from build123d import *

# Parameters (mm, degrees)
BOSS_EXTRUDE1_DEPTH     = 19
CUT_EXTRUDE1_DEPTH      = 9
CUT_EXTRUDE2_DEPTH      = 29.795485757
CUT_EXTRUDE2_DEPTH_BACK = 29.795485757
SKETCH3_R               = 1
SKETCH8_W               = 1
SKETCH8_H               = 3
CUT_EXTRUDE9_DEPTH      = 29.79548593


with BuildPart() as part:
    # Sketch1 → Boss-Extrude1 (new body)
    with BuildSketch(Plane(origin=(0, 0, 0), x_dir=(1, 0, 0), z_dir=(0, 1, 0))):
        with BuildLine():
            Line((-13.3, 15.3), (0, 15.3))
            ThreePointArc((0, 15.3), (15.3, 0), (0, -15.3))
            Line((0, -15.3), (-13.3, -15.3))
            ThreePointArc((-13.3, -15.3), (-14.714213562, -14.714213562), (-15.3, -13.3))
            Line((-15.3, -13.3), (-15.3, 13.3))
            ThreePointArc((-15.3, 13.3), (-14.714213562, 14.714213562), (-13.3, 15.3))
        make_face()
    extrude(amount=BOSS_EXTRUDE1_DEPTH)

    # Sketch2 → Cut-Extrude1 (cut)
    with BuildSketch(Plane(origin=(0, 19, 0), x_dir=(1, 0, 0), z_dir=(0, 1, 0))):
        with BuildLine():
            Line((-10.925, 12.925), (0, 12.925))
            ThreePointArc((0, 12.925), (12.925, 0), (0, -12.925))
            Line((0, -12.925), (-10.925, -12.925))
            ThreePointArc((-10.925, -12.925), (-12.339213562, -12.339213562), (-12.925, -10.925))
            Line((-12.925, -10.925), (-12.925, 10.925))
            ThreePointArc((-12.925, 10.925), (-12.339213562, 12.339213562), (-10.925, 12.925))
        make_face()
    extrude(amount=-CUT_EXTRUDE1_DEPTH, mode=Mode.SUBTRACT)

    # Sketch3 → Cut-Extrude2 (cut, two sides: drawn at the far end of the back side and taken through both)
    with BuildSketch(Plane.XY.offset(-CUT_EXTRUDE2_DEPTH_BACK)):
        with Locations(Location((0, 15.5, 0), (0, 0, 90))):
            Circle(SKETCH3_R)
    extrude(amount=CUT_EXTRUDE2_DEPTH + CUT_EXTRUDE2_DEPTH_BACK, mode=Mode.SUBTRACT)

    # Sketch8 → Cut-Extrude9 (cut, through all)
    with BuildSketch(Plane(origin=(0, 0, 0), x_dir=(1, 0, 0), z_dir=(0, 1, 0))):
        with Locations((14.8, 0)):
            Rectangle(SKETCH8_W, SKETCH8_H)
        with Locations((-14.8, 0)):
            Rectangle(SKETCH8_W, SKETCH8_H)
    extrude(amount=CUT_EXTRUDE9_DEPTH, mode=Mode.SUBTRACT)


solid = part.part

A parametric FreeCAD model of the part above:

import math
import FreeCAD as App
import Part
import Sketcher
from FreeCAD import Vector

doc = App.newDocument("Part")
body = doc.addObject("PartDesign::Body", "Body")

# Sketch on XZ plane
sketch1 = body.newObject("Sketcher::SketchObject", "Sketch")
sketch1.AttachmentSupport = (doc.getObject("XZ_Plane"), [""])
sketch1.MapMode = "FlatFace"
sketch1.addGeometry([
    Part.LineSegment(Vector(0, -15.3, 0), Vector(-13.3, -15.3, 0)),  # 0
    Part.ArcOfCircle(Part.Circle(Vector(-13.3, -13.3, 0), Vector(0, 0, 1), 2), math.radians(-180), math.radians(-90)),  # 1
    Part.LineSegment(Vector(-15.3, -13.3, 0), Vector(-15.3, 13.3, 0)),  # 2
    Part.ArcOfCircle(Part.Circle(Vector(-13.3, 13.3, 0), Vector(0, 0, 1), 2), math.radians(90), math.radians(180)),  # 3
    Part.LineSegment(Vector(-13.3, 15.3, 0), Vector(0, 15.3, 0)),  # 4
    Part.ArcOfCircle(Part.Circle(Vector(0, 0, 0), Vector(0, 0, 1), 15.3), math.radians(-90), math.radians(90)),  # 5
], False)
sketch1.addConstraint([
    Sketcher.Constraint("Tangent", 0, 2, 1, 2),
    Sketcher.Constraint("Tangent", 1, 1, 2, 1),
    Sketcher.Constraint("Tangent", 2, 2, 3, 2),
    Sketcher.Constraint("Tangent", 3, 1, 4, 1),
    Sketcher.Constraint("Tangent", 4, 2, 5, 2),
    Sketcher.Constraint("Tangent", 5, 1, 0, 1),
    Sketcher.Constraint("Horizontal", 0),
    Sketcher.Constraint("Vertical", 2),
    Sketcher.Constraint("Horizontal", 4),
    Sketcher.Constraint("Coincident", 5, 3, -1, 1),
    Sketcher.Constraint("Equal", 1, 3),
    Sketcher.Constraint("Radius", 1, 2.0),
    Sketcher.Constraint("Radius", 5, 15.3),
    Sketcher.Constraint("DistanceX", 0, 2, 0, 1, 13.3),
])
pad1 = body.newObject("PartDesign::Pad", "Pad")
pad1.Profile = sketch1
pad1.Length = 19
pad1.Reversed = True

# Sketch on XZ plane
sketch2 = body.newObject("Sketcher::SketchObject", "Sketch001")
sketch2.AttachmentSupport = (doc.getObject("XZ_Plane"), [""])
sketch2.MapMode = "FlatFace"
sketch2.AttachmentOffset = App.Placement(Vector(0, 0, -19), App.Rotation())
sketch2.addGeometry([
    Part.LineSegment(Vector(0, -12.9, 0), Vector(-10.9, -12.9, 0)),  # 0
    Part.ArcOfCircle(Part.Circle(Vector(-10.9, -10.9, 0), Vector(0, 0, 1), 2), math.radians(-180), math.radians(-90)),  # 1
    Part.LineSegment(Vector(-12.9, -10.9, 0), Vector(-12.9, 10.9, 0)),  # 2
    Part.ArcOfCircle(Part.Circle(Vector(-10.9, 10.9, 0), Vector(0, 0, 1), 2), math.radians(90), math.radians(180)),  # 3
    Part.LineSegment(Vector(-10.9, 12.9, 0), Vector(0, 12.9, 0)),  # 4
    Part.ArcOfCircle(Part.Circle(Vector(0, 0, 0), Vector(0, 0, 1), 12.9), math.radians(-90), math.radians(90)),  # 5
], False)
sketch2.addConstraint([
    Sketcher.Constraint("Tangent", 0, 2, 1, 2),
    Sketcher.Constraint("Tangent", 1, 1, 2, 1),
    Sketcher.Constraint("Tangent", 2, 2, 3, 2),
    Sketcher.Constraint("Tangent", 3, 1, 4, 1),
    Sketcher.Constraint("Tangent", 4, 2, 5, 2),
    Sketcher.Constraint("Tangent", 5, 1, 0, 1),
    Sketcher.Constraint("Horizontal", 0),
    Sketcher.Constraint("Vertical", 2),
    Sketcher.Constraint("Horizontal", 4),
    Sketcher.Constraint("Coincident", 5, 3, -1, 1),
    Sketcher.Constraint("Equal", 1, 3),
    Sketcher.Constraint("Radius", 1, 2.0),
    Sketcher.Constraint("Radius", 5, 12.925),
    Sketcher.Constraint("DistanceX", 0, 2, 0, 1, 10.925),
])
pocket1 = body.newObject("PartDesign::Pocket", "Pocket")
pocket1.Profile = sketch2
pocket1.Length = 9
pocket1.Reversed = True

# Sketch on XY plane
sketch3 = body.newObject("Sketcher::SketchObject", "Sketch002")
sketch3.AttachmentSupport = (doc.getObject("XY_Plane"), [""])
sketch3.MapMode = "FlatFace"
sketch3.addGeometry(Part.Circle(Vector(0, 15.5, 0), Vector(0, 0, 1), 1), False)
sketch3.addConstraint([
    Sketcher.Constraint("PointOnObject", 0, 3, -2),
    Sketcher.Constraint("Diameter", 0, 2.0),
    Sketcher.Constraint("DistanceY", -1, 1, 0, 3, 15.5),
])
pocket2 = body.newObject("PartDesign::Pocket", "Pocket001")
pocket2.Profile = sketch3
pocket2.Type = "ThroughAll"
pocket2.Midplane = True

# Sketch on XZ plane
sketch4 = body.newObject("Sketcher::SketchObject", "Sketch003")
sketch4.AttachmentSupport = (doc.getObject("XZ_Plane"), [""])
sketch4.MapMode = "FlatFace"
sketch4.addGeometry([
    Part.LineSegment(Vector(14.3, -1.5, 0), Vector(14.3, 1.5, 0)),  # 0
    Part.LineSegment(Vector(14.3, 1.5, 0), Vector(15.3, 1.5, 0)),  # 1
    Part.LineSegment(Vector(15.3, 1.5, 0), Vector(15.3, -1.5, 0)),  # 2
    Part.LineSegment(Vector(15.3, -1.5, 0), Vector(14.3, -1.5, 0)),  # 3
    Part.LineSegment(Vector(-15.3, -1.5, 0), Vector(-15.3, 1.5, 0)),  # 4
    Part.LineSegment(Vector(-15.3, 1.5, 0), Vector(-14.3, 1.5, 0)),  # 5
    Part.LineSegment(Vector(-14.3, 1.5, 0), Vector(-14.3, -1.5, 0)),  # 6
    Part.LineSegment(Vector(-14.3, -1.5, 0), Vector(-15.3, -1.5, 0)),  # 7
], False)
sketch4.addConstraint([
    Sketcher.Constraint("Coincident", 0, 2, 1, 1),
    Sketcher.Constraint("Coincident", 1, 2, 2, 1),
    Sketcher.Constraint("Coincident", 2, 2, 3, 1),
    Sketcher.Constraint("Coincident", 3, 2, 0, 1),
    Sketcher.Constraint("Coincident", 4, 2, 5, 1),
    Sketcher.Constraint("Coincident", 5, 2, 6, 1),
    Sketcher.Constraint("Coincident", 6, 2, 7, 1),
    Sketcher.Constraint("Coincident", 7, 2, 4, 1),
    Sketcher.Constraint("Vertical", 0),
    Sketcher.Constraint("Horizontal", 1),
    Sketcher.Constraint("Vertical", 2),
    Sketcher.Constraint("Horizontal", 3),
    Sketcher.Constraint("Vertical", 4),
    Sketcher.Constraint("Horizontal", 5),
    Sketcher.Constraint("Vertical", 6),
    Sketcher.Constraint("Horizontal", 7),
    Sketcher.Constraint("Symmetric", 2, 2, 4, 2, -1, 1),
    Sketcher.Constraint("Symmetric", 0, 2, 6, 2, -1, 1),
    Sketcher.Constraint("Horizontal", 1, 2, 4, 2),
    Sketcher.Constraint("DistanceX", 1, 1, 1, 2, 1.0),
    Sketcher.Constraint("DistanceY", 0, 1, 0, 2, 3.0),
    Sketcher.Constraint("DistanceX", -1, 1, 0, 2, 14.3),
])
pocket3 = body.newObject("PartDesign::Pocket", "Pocket002")
pocket3.Profile = sketch4
pocket3.Type = "ThroughAll"

doc.recompute()
